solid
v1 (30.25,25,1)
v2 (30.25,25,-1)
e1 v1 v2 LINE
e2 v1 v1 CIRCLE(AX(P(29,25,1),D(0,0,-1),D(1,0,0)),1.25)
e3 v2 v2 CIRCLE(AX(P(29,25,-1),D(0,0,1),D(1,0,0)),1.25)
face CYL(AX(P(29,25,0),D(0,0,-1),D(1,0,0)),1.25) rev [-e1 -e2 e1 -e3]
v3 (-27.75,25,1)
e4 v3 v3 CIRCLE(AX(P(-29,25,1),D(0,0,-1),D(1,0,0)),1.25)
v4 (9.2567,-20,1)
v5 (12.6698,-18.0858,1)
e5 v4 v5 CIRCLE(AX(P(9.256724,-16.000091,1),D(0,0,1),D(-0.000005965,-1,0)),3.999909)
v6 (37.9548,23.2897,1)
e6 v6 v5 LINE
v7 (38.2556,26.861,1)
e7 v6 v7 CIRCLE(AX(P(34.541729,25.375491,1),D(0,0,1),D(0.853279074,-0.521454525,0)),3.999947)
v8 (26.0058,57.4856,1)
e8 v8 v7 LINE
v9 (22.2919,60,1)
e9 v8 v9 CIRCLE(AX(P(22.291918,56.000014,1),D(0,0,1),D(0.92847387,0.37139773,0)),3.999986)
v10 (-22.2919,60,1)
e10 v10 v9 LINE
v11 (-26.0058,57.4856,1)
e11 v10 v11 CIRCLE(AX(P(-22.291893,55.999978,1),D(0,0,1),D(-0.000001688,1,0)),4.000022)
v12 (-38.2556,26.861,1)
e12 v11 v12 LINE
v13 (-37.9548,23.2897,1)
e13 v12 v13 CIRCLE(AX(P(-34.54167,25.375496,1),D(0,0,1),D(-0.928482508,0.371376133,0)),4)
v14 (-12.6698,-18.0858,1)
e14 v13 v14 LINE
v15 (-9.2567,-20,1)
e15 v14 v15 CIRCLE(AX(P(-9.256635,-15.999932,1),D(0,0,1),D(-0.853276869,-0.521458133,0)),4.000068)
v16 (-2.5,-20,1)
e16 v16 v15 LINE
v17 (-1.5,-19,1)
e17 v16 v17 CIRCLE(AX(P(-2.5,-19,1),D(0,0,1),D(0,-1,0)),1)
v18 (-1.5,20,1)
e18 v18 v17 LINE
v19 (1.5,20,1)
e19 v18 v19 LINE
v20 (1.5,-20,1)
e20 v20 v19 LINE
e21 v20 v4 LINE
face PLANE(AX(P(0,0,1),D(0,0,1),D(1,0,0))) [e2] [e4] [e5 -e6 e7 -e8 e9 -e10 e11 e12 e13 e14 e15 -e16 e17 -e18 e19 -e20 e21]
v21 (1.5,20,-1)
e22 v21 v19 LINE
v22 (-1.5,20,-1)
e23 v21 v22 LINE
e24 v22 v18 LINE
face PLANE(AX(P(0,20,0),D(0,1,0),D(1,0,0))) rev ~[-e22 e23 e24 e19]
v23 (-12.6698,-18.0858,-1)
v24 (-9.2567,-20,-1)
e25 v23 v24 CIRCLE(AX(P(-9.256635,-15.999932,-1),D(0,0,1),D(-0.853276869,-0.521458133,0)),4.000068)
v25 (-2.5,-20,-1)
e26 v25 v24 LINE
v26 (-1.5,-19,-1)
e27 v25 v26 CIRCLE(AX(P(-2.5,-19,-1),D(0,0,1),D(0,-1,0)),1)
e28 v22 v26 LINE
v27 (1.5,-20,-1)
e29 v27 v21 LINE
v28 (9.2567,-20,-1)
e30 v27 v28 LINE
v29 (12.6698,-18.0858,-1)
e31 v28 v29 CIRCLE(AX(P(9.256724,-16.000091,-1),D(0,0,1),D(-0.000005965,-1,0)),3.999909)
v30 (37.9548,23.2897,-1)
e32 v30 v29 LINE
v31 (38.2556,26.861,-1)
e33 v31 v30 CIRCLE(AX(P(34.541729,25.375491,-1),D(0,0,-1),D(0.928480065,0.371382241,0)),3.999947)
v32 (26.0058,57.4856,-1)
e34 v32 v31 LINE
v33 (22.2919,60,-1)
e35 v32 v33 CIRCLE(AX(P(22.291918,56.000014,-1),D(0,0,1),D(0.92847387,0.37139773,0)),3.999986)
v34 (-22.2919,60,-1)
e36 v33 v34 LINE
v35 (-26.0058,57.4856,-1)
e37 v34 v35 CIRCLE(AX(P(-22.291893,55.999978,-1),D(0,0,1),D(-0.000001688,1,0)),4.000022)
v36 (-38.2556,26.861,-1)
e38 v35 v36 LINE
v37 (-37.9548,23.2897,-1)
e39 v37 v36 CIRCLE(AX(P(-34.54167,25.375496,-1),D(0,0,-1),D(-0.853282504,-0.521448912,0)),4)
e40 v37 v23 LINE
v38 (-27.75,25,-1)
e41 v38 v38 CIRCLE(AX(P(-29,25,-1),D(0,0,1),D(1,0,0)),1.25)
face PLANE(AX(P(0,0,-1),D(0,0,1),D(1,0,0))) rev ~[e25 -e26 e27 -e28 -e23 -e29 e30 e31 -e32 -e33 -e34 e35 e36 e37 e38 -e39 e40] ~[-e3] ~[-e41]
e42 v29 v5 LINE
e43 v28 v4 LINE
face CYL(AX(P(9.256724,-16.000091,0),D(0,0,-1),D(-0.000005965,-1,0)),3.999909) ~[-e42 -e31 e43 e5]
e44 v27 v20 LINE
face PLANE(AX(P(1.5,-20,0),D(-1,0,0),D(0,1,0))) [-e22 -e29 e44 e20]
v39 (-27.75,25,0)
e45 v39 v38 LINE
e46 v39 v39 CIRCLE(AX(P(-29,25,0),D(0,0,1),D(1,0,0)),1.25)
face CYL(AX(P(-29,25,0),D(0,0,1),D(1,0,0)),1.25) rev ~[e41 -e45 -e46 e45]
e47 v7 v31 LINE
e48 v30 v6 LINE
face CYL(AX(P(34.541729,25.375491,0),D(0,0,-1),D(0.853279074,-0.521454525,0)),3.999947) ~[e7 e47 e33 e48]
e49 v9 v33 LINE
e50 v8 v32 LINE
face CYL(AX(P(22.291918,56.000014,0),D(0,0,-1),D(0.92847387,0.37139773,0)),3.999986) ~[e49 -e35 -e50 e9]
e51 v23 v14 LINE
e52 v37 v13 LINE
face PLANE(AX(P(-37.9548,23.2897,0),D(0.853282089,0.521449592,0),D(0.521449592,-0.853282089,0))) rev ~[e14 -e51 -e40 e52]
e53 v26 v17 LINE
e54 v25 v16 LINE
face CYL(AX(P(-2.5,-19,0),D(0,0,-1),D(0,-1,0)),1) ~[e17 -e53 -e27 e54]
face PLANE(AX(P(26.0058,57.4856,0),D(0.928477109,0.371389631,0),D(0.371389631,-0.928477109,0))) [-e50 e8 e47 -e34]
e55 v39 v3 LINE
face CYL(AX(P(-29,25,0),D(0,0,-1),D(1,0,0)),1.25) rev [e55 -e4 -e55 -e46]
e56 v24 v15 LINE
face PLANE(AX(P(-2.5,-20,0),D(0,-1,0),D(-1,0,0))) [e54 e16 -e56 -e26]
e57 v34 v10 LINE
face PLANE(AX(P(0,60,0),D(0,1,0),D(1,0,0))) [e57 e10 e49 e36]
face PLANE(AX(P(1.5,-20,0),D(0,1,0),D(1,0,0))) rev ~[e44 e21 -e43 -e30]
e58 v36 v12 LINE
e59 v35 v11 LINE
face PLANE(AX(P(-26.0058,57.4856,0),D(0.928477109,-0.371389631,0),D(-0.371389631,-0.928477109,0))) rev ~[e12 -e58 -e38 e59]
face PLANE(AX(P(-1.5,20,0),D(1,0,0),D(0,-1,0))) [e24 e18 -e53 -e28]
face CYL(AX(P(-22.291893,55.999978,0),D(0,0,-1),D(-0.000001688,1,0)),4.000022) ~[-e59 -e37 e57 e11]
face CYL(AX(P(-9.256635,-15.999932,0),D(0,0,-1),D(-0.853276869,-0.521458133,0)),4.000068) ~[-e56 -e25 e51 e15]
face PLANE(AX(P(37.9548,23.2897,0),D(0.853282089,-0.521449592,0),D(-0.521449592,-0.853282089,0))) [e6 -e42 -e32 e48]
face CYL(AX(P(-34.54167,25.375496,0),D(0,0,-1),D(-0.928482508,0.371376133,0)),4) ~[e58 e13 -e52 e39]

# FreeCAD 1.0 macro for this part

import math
import FreeCAD as App
import Part
import Sketcher

V = App.Vector
Q = App.Units.Quantity

doc = App.newDocument("Part")
params = doc.addObject("Spreadsheet::Sheet", "Params")
for row, (alias, value) in enumerate([
    ("sketch1_radius", "4 mm"),
    ("sketch1_radius2", "1 mm"),
    ("sketch1_diameter", "2.5 mm"),
    ("sketch1_width", "3 mm"),
    ("sketch1_height", "40 mm"),
    ("pad1_length", "2 mm"),
], start=1):
    params.set(f"A{row}", alias)
    params.set(f"B{row}", "=" + value)
    params.setAlias(f"B{row}", alias)

body = doc.addObject("PartDesign::Body", "Body")

# Sketch on XY plane
sketch1 = body.newObject("Sketcher::SketchObject", "Sketch")
sketch1.AttachmentSupport = (doc.getObject("XY_Plane"), [""])
sketch1.MapMode = "FlatFace"
sketch1.addGeometry([
    Part.LineSegment(V(22.3, 60, 0), V(-22.3, 60, 0)),  # 0
    Part.ArcOfCircle(Part.Circle(V(-22.3, 56, 0), V(0, 0, 1), 4), math.radians(90), math.radians(158)),  # 1
    Part.LineSegment(V(-26, 57.5, 0), V(-38.3, 26.9, 0)),  # 2
    Part.ArcOfCircle(Part.Circle(V(-34.5, 25.4, 0), V(0, 0, 1), 4), math.radians(158), math.radians(211)),  # 3
    Part.LineSegment(V(-38, 23.3, 0), V(-12.7, -18.1, 0)),  # 4
    Part.ArcOfCircle(Part.Circle(V(-9.3, -16, 0), V(0, 0, 1), 4), math.radians(-149), math.radians(-90)),  # 5
    Part.LineSegment(V(-9.3, -20, 0), V(-2.5, -20, 0)),  # 6
    Part.ArcOfCircle(Part.Circle(V(-2.5, -19, 0), V(0, 0, 1), 1), math.radians(-90), math.radians(0)),  # 7
    Part.LineSegment(V(-1.5, -19, 0), V(-1.5, 20, 0)),  # 8
    Part.LineSegment(V(-1.5, 20, 0), V(1.5, 20, 0)),  # 9
    Part.LineSegment(V(1.5, 20, 0), V(1.5, -20, 0)),  # 10
    Part.LineSegment(V(1.5, -20, 0), V(9.3, -20, 0)),  # 11
    Part.ArcOfCircle(Part.Circle(V(9.3, -16, 0), V(0, 0, 1), 4), math.radians(-90), math.radians(-31)),  # 12
    Part.LineSegment(V(12.7, -18.1, 0), V(38, 23.3, 0)),  # 13
    Part.ArcOfCircle(Part.Circle(V(34.5, 25.4, 0), V(0, 0, 1), 4), math.radians(-31), math.radians(22)),  # 14
    Part.LineSegment(V(38.3, 26.9, 0), V(26, 57.5, 0)),  # 15
    Part.ArcOfCircle(Part.Circle(V(22.3, 56, 0), V(0, 0, 1), 4), math.radians(22), math.radians(90)),  # 16
    Part.Circle(V(29, 25, 0), V(0, 0, 1), 1.2),  # 17
    Part.Circle(V(-29, 25, 0), V(0, 0, 1), 1.2),  # 18
], False)
sketch1.addConstraint([
    Sketcher.Constraint("Tangent", 0, 2, 1, 1),
    Sketcher.Constraint("Tangent", 1, 2, 2, 1),
    Sketcher.Constraint("Tangent", 2, 2, 3, 1),
    Sketcher.Constraint("Tangent", 3, 2, 4, 1),
    Sketcher.Constraint("Tangent", 4, 2, 5, 1),
    Sketcher.Constraint("Tangent", 5, 2, 6, 1),
    Sketcher.Constraint("Tangent", 6, 2, 7, 1),
    Sketcher.Constraint("Tangent", 7, 2, 8, 1),
    Sketcher.Constraint("Coincident", 8, 2, 9, 1),
    Sketcher.Constraint("Coincident", 9, 2, 10, 1),
    Sketcher.Constraint("Coincident", 10, 2, 11, 1),
    Sketcher.Constraint("Tangent", 11, 2, 12, 1),
    Sketcher.Constraint("Tangent", 12, 2, 13, 1),
    Sketcher.Constraint("Tangent", 13, 2, 14, 1),
    Sketcher.Constraint("Tangent", 14, 2, 15, 1),
    Sketcher.Constraint("Tangent", 15, 2, 16, 1),
    Sketcher.Constraint("Tangent", 16, 2, 0, 1),
    Sketcher.Constraint("Horizontal", 0),
    Sketcher.Constraint("Horizontal", 6),
    Sketcher.Constraint("Vertical", 8),
    Sketcher.Constraint("Horizontal", 9),
    Sketcher.Constraint("Vertical", 10),
    Sketcher.Constraint("Horizontal", 11),
    Sketcher.Constraint("Equal", 1, 3),
    Sketcher.Constraint("Equal", 3, 5),
    Sketcher.Constraint("Equal", 5, 12),
    Sketcher.Constraint("Equal", 12, 14),
    Sketcher.Constraint("Equal", 14, 16),
    Sketcher.Constraint("Equal", 17, 18),
    Sketcher.Constraint("Symmetric", 8, 2, 10, 2, -1, 1),
    Sketcher.Constraint("Symmetric", 5, 3, 12, 3, -2),
    Sketcher.Constraint("Symmetric", 3, 3, 14, 3, -2),
    Sketcher.Constraint("Symmetric", 17, 3, 18, 3, -2),
    Sketcher.Constraint("Horizontal", 2, 2, 14, 2),
    Sketcher.Constraint("Radius", 1, Q("4 mm")),
    Sketcher.Constraint("Radius", 7, Q("1 mm")),
    Sketcher.Constraint("Diameter", 17, Q("2.5 mm")),
    Sketcher.Constraint("DistanceX", 9, 1, 9, 2, Q("3 mm")),
    Sketcher.Constraint("DistanceY", 10, 2, 10, 1, Q("40 mm")),
    Sketcher.Constraint("DistanceX", -1, 1, 17, 3, Q("29 mm")),
    Sketcher.Constraint("DistanceY", -1, 1, 17, 3, Q("25 mm")),
    Sketcher.Constraint("DistanceY", -1, 1, 1, 3, Q("56 mm")),
    Sketcher.Constraint("Angle", 4, Q("-58.5705 deg")),
    Sketcher.Constraint("DistanceY", 3, 3, 1, 2, Q("32.11 mm")),
    Sketcher.Constraint("DistanceX", 0, 2, 0, 1, Q("44.5838 mm")),
    Sketcher.Constraint("DistanceX", 6, 1, 6, 2, Q("6.7567 mm")),
])
sketch1.setExpression("Constraints[34]", "Params.sketch1_radius")
sketch1.setExpression("Constraints[35]", "Params.sketch1_radius2")
sketch1.setExpression("Constraints[36]", "Params.sketch1_diameter")
sketch1.setExpression("Constraints[37]", "Params.sketch1_width")
sketch1.setExpression("Constraints[38]", "Params.sketch1_height")
pad1 = body.newObject("PartDesign::Pad", "Pad")
pad1.Profile = sketch1
pad1.setExpression("Length", "Params.pad1_length")
pad1.Midplane = True

doc.recompute()
